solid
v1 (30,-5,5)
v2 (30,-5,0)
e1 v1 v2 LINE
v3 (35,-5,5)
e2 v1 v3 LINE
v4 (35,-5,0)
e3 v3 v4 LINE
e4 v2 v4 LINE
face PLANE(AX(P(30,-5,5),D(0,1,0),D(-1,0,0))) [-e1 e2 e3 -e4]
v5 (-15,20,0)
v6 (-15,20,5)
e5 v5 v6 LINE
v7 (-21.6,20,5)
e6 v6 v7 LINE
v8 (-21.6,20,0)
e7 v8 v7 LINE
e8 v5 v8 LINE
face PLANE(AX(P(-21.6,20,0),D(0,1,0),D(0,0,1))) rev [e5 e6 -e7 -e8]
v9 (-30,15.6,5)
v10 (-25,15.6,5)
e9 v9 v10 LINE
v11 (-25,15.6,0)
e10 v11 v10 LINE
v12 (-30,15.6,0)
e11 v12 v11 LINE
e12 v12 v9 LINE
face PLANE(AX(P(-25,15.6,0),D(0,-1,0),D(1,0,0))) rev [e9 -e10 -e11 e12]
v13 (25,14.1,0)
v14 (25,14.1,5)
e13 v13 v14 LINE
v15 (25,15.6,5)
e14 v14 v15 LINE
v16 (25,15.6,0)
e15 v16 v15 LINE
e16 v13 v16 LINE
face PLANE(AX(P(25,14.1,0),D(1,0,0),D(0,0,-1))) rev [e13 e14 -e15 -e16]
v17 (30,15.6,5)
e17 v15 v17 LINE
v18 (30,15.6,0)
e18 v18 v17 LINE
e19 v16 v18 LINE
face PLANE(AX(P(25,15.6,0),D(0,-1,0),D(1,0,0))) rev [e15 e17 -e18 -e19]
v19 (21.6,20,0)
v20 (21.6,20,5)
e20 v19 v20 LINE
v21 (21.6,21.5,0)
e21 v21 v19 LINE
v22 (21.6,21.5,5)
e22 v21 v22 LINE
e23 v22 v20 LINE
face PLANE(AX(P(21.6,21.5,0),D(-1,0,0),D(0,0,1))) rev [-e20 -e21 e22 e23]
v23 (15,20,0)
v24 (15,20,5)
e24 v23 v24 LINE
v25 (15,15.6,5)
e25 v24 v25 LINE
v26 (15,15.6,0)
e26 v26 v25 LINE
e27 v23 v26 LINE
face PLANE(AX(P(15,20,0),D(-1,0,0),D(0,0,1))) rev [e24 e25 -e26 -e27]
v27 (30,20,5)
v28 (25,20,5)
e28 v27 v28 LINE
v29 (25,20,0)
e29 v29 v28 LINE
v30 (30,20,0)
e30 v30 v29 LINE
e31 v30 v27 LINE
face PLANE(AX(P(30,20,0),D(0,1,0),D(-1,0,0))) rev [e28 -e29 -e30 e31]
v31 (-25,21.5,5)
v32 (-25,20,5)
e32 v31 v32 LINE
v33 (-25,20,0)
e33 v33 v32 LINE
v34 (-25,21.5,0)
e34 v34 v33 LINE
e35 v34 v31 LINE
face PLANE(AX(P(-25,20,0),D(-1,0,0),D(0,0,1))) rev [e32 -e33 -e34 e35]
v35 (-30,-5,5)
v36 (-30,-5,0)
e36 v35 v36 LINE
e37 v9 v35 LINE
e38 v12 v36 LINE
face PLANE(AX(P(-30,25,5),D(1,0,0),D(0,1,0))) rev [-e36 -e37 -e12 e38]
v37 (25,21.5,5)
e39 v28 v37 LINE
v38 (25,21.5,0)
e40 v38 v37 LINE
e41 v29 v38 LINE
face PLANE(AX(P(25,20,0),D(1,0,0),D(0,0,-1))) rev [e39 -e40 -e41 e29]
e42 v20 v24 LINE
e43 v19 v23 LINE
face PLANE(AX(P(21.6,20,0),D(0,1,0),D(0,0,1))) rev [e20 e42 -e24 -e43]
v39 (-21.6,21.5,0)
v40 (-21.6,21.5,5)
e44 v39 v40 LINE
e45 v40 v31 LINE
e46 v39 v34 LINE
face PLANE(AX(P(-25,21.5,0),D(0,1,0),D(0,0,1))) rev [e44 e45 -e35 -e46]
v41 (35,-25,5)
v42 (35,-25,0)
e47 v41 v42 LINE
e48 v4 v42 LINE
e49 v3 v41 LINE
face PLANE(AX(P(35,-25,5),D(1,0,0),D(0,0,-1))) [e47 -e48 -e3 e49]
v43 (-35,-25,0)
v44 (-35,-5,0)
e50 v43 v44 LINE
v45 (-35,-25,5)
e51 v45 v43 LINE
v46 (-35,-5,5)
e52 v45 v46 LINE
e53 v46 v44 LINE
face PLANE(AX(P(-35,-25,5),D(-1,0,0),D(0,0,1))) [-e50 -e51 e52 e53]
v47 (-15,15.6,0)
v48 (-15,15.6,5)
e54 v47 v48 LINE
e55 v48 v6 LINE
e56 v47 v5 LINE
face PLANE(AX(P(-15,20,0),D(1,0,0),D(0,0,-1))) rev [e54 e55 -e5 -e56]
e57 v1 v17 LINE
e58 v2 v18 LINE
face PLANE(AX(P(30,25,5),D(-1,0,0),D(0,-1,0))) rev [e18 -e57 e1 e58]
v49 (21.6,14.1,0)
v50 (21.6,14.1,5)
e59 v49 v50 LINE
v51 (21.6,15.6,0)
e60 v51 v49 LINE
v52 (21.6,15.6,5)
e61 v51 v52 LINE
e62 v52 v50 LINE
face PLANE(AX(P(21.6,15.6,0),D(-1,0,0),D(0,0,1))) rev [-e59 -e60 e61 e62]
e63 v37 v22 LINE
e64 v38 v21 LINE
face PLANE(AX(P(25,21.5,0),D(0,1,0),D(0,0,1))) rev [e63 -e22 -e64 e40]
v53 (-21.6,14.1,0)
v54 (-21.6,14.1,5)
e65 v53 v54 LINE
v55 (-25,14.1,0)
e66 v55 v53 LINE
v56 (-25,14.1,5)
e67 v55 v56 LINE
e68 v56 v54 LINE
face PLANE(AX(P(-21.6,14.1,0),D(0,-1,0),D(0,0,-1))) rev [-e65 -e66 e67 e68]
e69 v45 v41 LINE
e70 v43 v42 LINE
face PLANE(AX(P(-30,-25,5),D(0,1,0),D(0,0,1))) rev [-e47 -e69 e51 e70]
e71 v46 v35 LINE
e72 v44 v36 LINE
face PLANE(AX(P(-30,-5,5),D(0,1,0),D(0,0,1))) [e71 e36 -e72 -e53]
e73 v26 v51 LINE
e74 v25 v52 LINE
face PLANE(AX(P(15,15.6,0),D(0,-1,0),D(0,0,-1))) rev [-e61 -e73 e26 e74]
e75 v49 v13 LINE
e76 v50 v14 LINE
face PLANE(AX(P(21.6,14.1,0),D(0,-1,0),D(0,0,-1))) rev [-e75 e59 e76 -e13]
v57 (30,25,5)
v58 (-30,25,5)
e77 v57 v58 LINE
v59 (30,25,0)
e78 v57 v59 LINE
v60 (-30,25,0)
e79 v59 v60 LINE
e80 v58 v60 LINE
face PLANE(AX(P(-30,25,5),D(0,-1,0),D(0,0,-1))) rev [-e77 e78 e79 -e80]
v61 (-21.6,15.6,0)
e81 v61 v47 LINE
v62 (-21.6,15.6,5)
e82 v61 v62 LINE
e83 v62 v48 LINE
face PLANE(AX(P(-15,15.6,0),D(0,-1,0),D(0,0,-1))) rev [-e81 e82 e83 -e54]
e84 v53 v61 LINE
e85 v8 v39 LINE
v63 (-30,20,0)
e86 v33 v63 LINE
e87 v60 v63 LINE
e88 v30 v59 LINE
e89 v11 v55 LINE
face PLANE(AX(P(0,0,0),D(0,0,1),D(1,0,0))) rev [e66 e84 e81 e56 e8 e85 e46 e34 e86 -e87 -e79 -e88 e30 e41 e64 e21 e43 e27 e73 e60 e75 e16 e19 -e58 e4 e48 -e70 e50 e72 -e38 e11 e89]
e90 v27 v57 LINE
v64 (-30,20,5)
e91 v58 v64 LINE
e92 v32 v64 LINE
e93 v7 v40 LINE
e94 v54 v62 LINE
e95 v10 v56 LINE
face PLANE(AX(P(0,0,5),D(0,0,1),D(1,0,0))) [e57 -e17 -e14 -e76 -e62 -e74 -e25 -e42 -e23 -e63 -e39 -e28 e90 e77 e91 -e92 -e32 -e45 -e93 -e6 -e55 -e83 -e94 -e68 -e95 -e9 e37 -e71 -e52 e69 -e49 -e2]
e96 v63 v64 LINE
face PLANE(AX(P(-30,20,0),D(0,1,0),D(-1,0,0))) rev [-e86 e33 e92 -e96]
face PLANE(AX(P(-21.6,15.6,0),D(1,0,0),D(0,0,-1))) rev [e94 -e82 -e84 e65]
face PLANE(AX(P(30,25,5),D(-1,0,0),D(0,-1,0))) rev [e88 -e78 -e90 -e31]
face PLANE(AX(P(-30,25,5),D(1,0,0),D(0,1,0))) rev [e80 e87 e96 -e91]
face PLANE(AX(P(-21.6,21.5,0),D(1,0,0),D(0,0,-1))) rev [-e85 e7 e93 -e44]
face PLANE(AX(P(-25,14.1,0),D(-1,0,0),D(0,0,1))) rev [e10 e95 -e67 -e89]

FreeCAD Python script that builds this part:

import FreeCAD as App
import Part
import Sketcher
from FreeCAD import Vector


def add_polygon(sketch, points):
    """Adds a closed chain of lines whose ends are joined by coincident constraints."""
    first, n = sketch.GeometryCount, len(points)
    for a, b in zip(points, points[1:] + points[:1]):
        sketch.addGeometry(Part.LineSegment(App.Vector(*a, 0), App.Vector(*b, 0)), False)
    for i in range(n):
        sketch.addConstraint(Sketcher.Constraint("Coincident", first + i, 2, first + (i + 1) % n, 1))

doc = App.newDocument("Part")
body = doc.addObject("PartDesign::Body", "Body")

# Sketch on XY plane
sketch1 = body.newObject("Sketcher::SketchObject", "Sketch")
sketch1.AttachmentSupport = (doc.getObject("XY_Plane"), [""])
sketch1.MapMode = "FlatFace"
add_polygon(sketch1, [(-30, 25), (-30, -25), (30, -25), (30, 25)])  # lines 0-3
sketch1.addConstraint([
    Sketcher.Constraint("Vertical", 0),
    Sketcher.Constraint("Horizontal", 1),
    Sketcher.Constraint("Vertical", 2),
    Sketcher.Constraint("Horizontal", 3),
    Sketcher.Constraint("Symmetric", 0, 2, 2, 2, -1, 1),
    Sketcher.Constraint("DistanceX", 1, 1, 1, 2, 60.0),
    Sketcher.Constraint("DistanceY", 0, 2, 0, 1, 50.0),
])
pad1 = body.newObject("PartDesign::Pad", "Pad")
pad1.Profile = sketch1
pad1.Length = 5

# Sketch on XY plane
sketch2 = body.newObject("Sketcher::SketchObject", "Sketch001")
sketch2.AttachmentSupport = (doc.getObject("XY_Plane"), [""])
sketch2.MapMode = "FlatFace"
sketch2.AttachmentOffset = App.Placement(Vector(0, 0, 5), App.Rotation())
add_polygon(sketch2, [(-30, 20), (-30, 15.6), (-25, 15.6), (-25, 14.1), (-21.6, 14.1), (-21.6, 15.6), (-15, 15.6), (-15, 20), (-21.6, 20), (-21.6, 21.5), (-25, 21.5), (-25, 20)])  # lines 0-11
add_polygon(sketch2, [(30, 20), (25, 20), (25, 21.5), (21.6, 21.5), (21.6, 20), (15, 20), (15, 15.6), (21.6, 15.6), (21.6, 14.1), (25, 14.1), (25, 15.6), (30, 15.6)])  # lines 12-23
sketch2.addConstraint([
    Sketcher.Constraint("Vertical", 0),
    Sketcher.Constraint("Horizontal", 1),
    Sketcher.Constraint("Vertical", 2),
    Sketcher.Constraint("Horizontal", 3),
    Sketcher.Constraint("Vertical", 4),
    Sketcher.Constraint("Horizontal", 5),
    Sketcher.Constraint("Vertical", 6),
    Sketcher.Constraint("Horizontal", 7),
    Sketcher.Constraint("Vertical", 8),
    Sketcher.Constraint("Horizontal", 9),
    Sketcher.Constraint("Vertical", 10),
    Sketcher.Constraint("Horizontal", 11),
    Sketcher.Constraint("Horizontal", 12),
    Sketcher.Constraint("Vertical", 13),
    Sketcher.Constraint("Horizontal", 14),
    Sketcher.Constraint("Vertical", 15),
    Sketcher.Constraint("Horizontal", 16),
    Sketcher.Constraint("Vertical", 17),
    Sketcher.Constraint("Horizontal", 18),
    Sketcher.Constraint("Vertical", 19),
    Sketcher.Constraint("Horizontal", 20),
    Sketcher.Constraint("Vertical", 21),
    Sketcher.Constraint("Horizontal", 22),
    Sketcher.Constraint("Vertical", 23),
    Sketcher.Constraint("Symmetric", 10, 2, 12, 2, -2),
    Sketcher.Constraint("Symmetric", 8, 2, 14, 2, -2),
    Sketcher.Constraint("Symmetric", 6, 2, 16, 2, -2),
    Sketcher.Constraint("Symmetric", 4, 2, 18, 2, -2),
    Sketcher.Constraint("Symmetric", 2, 2, 20, 2, -2),
    Sketcher.Constraint("Symmetric", 0, 2, 22, 2, -2),
    Sketcher.Constraint("Horizontal", 1, 2, 4, 2),
    Sketcher.Constraint("Horizontal", 7, 2, 10, 2),
    Sketcher.Constraint("Vertical", 4, 2, 7, 2),
    Sketcher.Constraint("Vertical", 2, 2, 9, 2),
    Sketcher.Constraint("Equal", 4, 8),
    Sketcher.Constraint("DistanceX", 1, 1, 1, 2, 5.0),
    Sketcher.Constraint("DistanceX", 3, 1, 3, 2, 3.4),
    Sketcher.Constraint("DistanceX", 5, 1, 5, 2, 6.6),
    Sketcher.Constraint("DistanceY", 0, 2, 0, 1, 4.4),
    Sketcher.Constraint("DistanceY", 2, 2, 2, 1, 1.5),
    Sketcher.Constraint("DistanceX", 0, 2, -1, 1, 30.0),
    Sketcher.Constraint("DistanceY", -1, 1, 6, 2, 20.0),
])
pocket1 = body.newObject("PartDesign::Pocket", "Pocket")
pocket1.Profile = sketch2
pocket1.Length = 5

# Sketch on XY plane
sketch3 = body.newObject("Sketcher::SketchObject", "Sketch002")
sketch3.AttachmentSupport = (doc.getObject("XY_Plane"), [""])
sketch3.MapMode = "FlatFace"
add_polygon(sketch3, [(35, -5), (35, -25), (30, -25), (30, -5)])  # lines 0-3
add_polygon(sketch3, [(-30, -5), (-30, -25), (-35, -25), (-35, -5)])  # lines 4-7
sketch3.addConstraint([
    Sketcher.Constraint("Vertical", 0),
    Sketcher.Constraint("Horizontal", 1),
    Sketcher.Constraint("Vertical", 2),
    Sketcher.Constraint("Horizontal", 3),
    Sketcher.Constraint("Vertical", 4),
    Sketcher.Constraint("Horizontal", 5),
    Sketcher.Constraint("Vertical", 6),
    Sketcher.Constraint("Horizontal", 7),
    Sketcher.Constraint("Symmetric", 1, 2, 4, 2, -2),
    Sketcher.Constraint("Symmetric", 3, 2, 6, 2, -2),
    Sketcher.Constraint("DistanceX", 1, 2, 1, 1, 5.0),
    Sketcher.Constraint("DistanceY", 0, 2, 0, 1, 20.0),
    Sketcher.Constraint("DistanceX", -1, 1, 0, 2, 35.0),
    Sketcher.Constraint("DistanceY", 0, 2, -1, 1, 25.0),
])
pad2 = body.newObject("PartDesign::Pad", "Pad001")
pad2.Profile = sketch3
pad2.Length = 5

doc.recompute()
